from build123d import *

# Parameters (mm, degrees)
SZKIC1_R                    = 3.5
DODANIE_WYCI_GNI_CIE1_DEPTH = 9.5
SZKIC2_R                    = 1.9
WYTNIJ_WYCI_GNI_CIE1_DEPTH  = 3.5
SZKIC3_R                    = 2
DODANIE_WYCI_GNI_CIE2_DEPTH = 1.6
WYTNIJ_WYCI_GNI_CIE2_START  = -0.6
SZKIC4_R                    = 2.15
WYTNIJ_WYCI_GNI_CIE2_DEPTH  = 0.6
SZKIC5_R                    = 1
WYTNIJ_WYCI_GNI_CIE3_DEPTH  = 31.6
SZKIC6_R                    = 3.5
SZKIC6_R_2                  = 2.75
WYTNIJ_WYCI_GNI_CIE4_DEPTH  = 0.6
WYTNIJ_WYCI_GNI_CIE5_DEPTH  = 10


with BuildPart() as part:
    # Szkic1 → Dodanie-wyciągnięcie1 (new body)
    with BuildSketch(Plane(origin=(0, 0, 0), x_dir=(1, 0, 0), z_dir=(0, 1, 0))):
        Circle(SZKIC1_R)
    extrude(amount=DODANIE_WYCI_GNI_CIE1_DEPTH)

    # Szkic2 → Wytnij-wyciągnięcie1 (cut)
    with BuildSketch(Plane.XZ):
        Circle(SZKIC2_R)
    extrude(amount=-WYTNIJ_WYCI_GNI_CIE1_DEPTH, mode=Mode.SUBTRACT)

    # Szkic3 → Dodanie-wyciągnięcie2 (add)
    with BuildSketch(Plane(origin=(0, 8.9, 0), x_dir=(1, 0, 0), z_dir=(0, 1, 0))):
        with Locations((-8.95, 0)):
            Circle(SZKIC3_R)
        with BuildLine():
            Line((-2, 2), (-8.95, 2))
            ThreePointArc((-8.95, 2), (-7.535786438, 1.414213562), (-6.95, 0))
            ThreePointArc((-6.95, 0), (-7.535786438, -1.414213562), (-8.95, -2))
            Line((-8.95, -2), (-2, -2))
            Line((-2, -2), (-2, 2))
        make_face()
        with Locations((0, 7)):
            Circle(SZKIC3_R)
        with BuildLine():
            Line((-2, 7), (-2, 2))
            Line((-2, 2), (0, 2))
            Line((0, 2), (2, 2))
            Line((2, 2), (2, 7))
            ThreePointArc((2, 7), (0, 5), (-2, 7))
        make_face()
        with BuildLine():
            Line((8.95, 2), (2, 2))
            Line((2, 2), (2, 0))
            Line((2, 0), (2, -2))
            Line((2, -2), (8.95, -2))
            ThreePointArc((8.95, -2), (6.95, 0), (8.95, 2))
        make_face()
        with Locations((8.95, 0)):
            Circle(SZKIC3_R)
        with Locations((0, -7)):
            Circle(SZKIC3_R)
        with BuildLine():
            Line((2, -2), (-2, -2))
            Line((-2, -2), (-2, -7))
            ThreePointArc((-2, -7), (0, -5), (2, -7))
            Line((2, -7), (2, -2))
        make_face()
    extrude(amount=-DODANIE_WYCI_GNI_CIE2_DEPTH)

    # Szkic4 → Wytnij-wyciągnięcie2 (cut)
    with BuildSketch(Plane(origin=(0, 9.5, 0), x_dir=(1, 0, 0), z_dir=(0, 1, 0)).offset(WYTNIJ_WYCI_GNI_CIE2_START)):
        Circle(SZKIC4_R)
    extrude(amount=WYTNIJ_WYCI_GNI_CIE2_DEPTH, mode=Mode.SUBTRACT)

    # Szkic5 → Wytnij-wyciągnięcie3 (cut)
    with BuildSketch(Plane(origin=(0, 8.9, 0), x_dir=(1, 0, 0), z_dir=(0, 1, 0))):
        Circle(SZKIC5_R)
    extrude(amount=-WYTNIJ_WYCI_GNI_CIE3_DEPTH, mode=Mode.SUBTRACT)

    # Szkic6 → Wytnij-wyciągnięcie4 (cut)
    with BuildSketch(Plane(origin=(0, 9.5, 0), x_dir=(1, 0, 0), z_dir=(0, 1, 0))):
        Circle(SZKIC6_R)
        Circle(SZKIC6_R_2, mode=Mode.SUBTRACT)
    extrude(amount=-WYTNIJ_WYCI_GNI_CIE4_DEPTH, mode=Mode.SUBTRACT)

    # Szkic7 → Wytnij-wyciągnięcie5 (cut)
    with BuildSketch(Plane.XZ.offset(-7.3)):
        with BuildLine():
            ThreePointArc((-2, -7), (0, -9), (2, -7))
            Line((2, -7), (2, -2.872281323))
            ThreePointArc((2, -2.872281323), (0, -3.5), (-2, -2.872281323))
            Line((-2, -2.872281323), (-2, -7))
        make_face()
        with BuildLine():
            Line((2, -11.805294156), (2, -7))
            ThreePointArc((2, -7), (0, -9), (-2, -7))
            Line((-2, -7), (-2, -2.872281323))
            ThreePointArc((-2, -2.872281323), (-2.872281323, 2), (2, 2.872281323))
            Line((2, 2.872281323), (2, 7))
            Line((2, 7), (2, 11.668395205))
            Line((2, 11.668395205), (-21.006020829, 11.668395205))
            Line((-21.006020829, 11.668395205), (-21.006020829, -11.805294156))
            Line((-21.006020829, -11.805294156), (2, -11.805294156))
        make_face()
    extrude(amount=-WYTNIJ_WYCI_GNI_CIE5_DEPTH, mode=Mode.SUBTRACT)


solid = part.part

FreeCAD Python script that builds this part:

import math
import FreeCAD as App
import Part
import Sketcher

V = App.Vector

doc = App.newDocument("Part")
body = doc.addObject("PartDesign::Body", "Body")

# Sketch on XZ plane
sketch1 = body.newObject("Sketcher::SketchObject", "Sketch")
sketch1.AttachmentSupport = (doc.getObject("XZ_Plane"), [""])
sketch1.MapMode = "FlatFace"
sketch1.addGeometry(Part.Circle(V(0, 0, 0), V(0, 0, 1), 3.5), False)
sketch1.addConstraint([
    Sketcher.Constraint("Coincident", 0, 3, -1, 1),
    Sketcher.Constraint("Diameter", 0, 7.0),
])
pad1 = body.newObject("PartDesign::Pad", "Pad")
pad1.Profile = sketch1
pad1.Length = 9.5
pad1.Reversed = True

# Sketch on XZ plane
sketch2 = body.newObject("Sketcher::SketchObject", "Sketch001")
sketch2.AttachmentSupport = (doc.getObject("XZ_Plane"), [""])
sketch2.MapMode = "FlatFace"
sketch2.addGeometry(Part.Circle(V(0, 0, 0), V(0, 0, 1), 1.9), False)
sketch2.addConstraint([
    Sketcher.Constraint("Coincident", 0, 3, -1, 1),
    Sketcher.Constraint("Diameter", 0, 3.8),
])
pocket1 = body.newObject("PartDesign::Pocket", "Pocket")
pocket1.Profile = sketch2
pocket1.Length = 3.5

# Sketch on XZ plane
sketch3 = body.newObject("Sketcher::SketchObject", "Sketch002")
sketch3.AttachmentSupport = (doc.getObject("XZ_Plane"), [""])
sketch3.MapMode = "FlatFace"
sketch3.AttachmentOffset = App.Placement(V(0, 0, -8.9), App.Rotation())
sketch3.addGeometry([
    Part.ArcOfCircle(Part.Circle(V(-8.9, 0, 0), V(0, 0, 1), 2), math.radians(90), math.radians(270)),  # 0
    Part.LineSegment(V(-8.9, 2, 0), V(-2, 2, 0)),  # 1
    Part.LineSegment(V(-2, 2, 0), V(-2, -2, 0)),  # 2
    Part.LineSegment(V(-2, -2, 0), V(-8.9, -2, 0)),  # 3
    Part.ArcOfCircle(Part.Circle(V(0, -7, 0), V(0, 0, 1), 2), math.radians(180), math.radians(360)),  # 4
    Part.LineSegment(V(-2, -7, 0), V(-2, -2, 0)),  # 5
    Part.LineSegment(V(-2, -2, 0), V(2, -2, 0)),  # 6
    Part.LineSegment(V(2, -2, 0), V(2, -7, 0)),  # 7
    Part.LineSegment(V(8.9, -2, 0), V(2, -2, 0)),  # 8
    Part.LineSegment(V(2, -2, 0), V(2, 2, 0)),  # 9
    Part.LineSegment(V(2, 2, 0), V(8.9, 2, 0)),  # 10
    Part.ArcOfCircle(Part.Circle(V(8.9, 0, 0), V(0, 0, 1), 2), math.radians(-90), math.radians(90)),  # 11
    Part.ArcOfCircle(Part.Circle(V(0, 7, 0), V(0, 0, 1), 2), math.radians(0), math.radians(180)),  # 12
    Part.LineSegment(V(2, 7, 0), V(2, 2, 0)),  # 13
    Part.LineSegment(V(2, 2, 0), V(-2, 2, 0)),  # 14
    Part.LineSegment(V(-2, 2, 0), V(-2, 7, 0)),  # 15
], False)
sketch3.addConstraint([
    Sketcher.Constraint("Tangent", 0, 1, 1, 1),
    Sketcher.Constraint("Coincident", 1, 2, 2, 1),
    Sketcher.Constraint("Coincident", 2, 2, 3, 1),
    Sketcher.Constraint("Tangent", 3, 2, 0, 2),
    Sketcher.Constraint("Tangent", 4, 1, 5, 1),
    Sketcher.Constraint("Coincident", 5, 2, 6, 1),
    Sketcher.Constraint("Coincident", 6, 2, 7, 1),
    Sketcher.Constraint("Tangent", 7, 2, 4, 2),
    Sketcher.Constraint("Coincident", 8, 2, 9, 1),
    Sketcher.Constraint("Coincident", 9, 2, 10, 1),
    Sketcher.Constraint("Tangent", 10, 2, 11, 2),
    Sketcher.Constraint("Tangent", 11, 1, 8, 1),
    Sketcher.Constraint("Tangent", 12, 1, 13, 1),
    Sketcher.Constraint("Coincident", 13, 2, 14, 1),
    Sketcher.Constraint("Coincident", 14, 2, 15, 1),
    Sketcher.Constraint("Tangent", 15, 2, 12, 2),
    Sketcher.Constraint("Horizontal", 1),
    Sketcher.Constraint("Vertical", 2),
    Sketcher.Constraint("Horizontal", 3),
    Sketcher.Constraint("Vertical", 5),
    Sketcher.Constraint("Horizontal", 6),
    Sketcher.Constraint("Vertical", 7),
    Sketcher.Constraint("Horizontal", 8),
    Sketcher.Constraint("Vertical", 9),
    Sketcher.Constraint("Horizontal", 10),
    Sketcher.Constraint("Vertical", 13),
    Sketcher.Constraint("Horizontal", 14),
    Sketcher.Constraint("Vertical", 15),
    Sketcher.Constraint("Coincident", 5, 2, 2, 2),
    Sketcher.Constraint("Coincident", 8, 2, 6, 2),
    Sketcher.Constraint("Coincident", 13, 2, 9, 2),
    Sketcher.Constraint("Coincident", 14, 2, 1, 2),
    Sketcher.Constraint("Equal", 0, 4),
    Sketcher.Constraint("Symmetric", 0, 3, 11, 3, -1, 1),
    Sketcher.Constraint("Symmetric", 4, 3, 12, 3, -1, 1),
    Sketcher.Constraint("Radius", 0, 2.0),
    Sketcher.Constraint("DistanceY", 5, 1, 5, 2, 5.0),
    Sketcher.Constraint("DistanceX", 1, 1, 1, 2, 6.95),
])
pad2 = body.newObject("PartDesign::Pad", "Pad001")
pad2.Profile = sketch3
pad2.Length = 1.6

# Sketch on XZ plane
sketch4 = body.newObject("Sketcher::SketchObject", "Sketch003")
sketch4.AttachmentSupport = (doc.getObject("XZ_Plane"), [""])
sketch4.MapMode = "FlatFace"
sketch4.AttachmentOffset = App.Placement(V(0, 0, -8.9), App.Rotation())
sketch4.addGeometry(Part.Circle(V(0, 0, 0), V(0, 0, 1), 2.1), False)
sketch4.addConstraint([
    Sketcher.Constraint("Coincident", 0, 3, -1, 1),
    Sketcher.Constraint("Diameter", 0, 4.3),
])
pocket2 = body.newObject("PartDesign::Pocket", "Pocket001")
pocket2.Profile = sketch4
pocket2.Length = 0.6

# Sketch on XZ plane
sketch5 = body.newObject("Sketcher::SketchObject", "Sketch004")
sketch5.AttachmentSupport = (doc.getObject("XZ_Plane"), [""])
sketch5.MapMode = "FlatFace"
sketch5.AttachmentOffset = App.Placement(V(0, 0, -8.9), App.Rotation())
sketch5.addGeometry(Part.Circle(V(0, 0, 0), V(0, 0, 1), 1), False)
sketch5.addConstraint([
    Sketcher.Constraint("Coincident", 0, 3, -1, 1),
    Sketcher.Constraint("Diameter", 0, 2.0),
])
pocket3 = body.newObject("PartDesign::Pocket", "Pocket002")
pocket3.Profile = sketch5
pocket3.Length = 31.6
pocket3.Reversed = True

# Sketch on XZ plane
sketch6 = body.newObject("Sketcher::SketchObject", "Sketch005")
sketch6.AttachmentSupport = (doc.getObject("XZ_Plane"), [""])
sketch6.MapMode = "FlatFace"
sketch6.AttachmentOffset = App.Placement(V(0, 0, -9.5), App.Rotation())
sketch6.addGeometry([
    Part.Circle(V(0, 0, 0), V(0, 0, 1), 3.5),
    Part.Circle(V(0, 0, 0), V(0, 0, 1), 2.8),
], False)
sketch6.addConstraint([
    Sketcher.Constraint("Coincident", 0, 3, -1, 1),
    Sketcher.Constraint("Coincident", 1, 3, -1, 1),
    Sketcher.Constraint("Diameter", 0, 7.0),
    Sketcher.Constraint("Diameter", 1, 5.5),
])
pocket4 = body.newObject("PartDesign::Pocket", "Pocket003")
pocket4.Profile = sketch6
pocket4.Length = 0.6
pocket4.Reversed = True

# Sketch on XZ plane
sketch7 = body.newObject("Sketcher::SketchObject", "Sketch006")
sketch7.AttachmentSupport = (doc.getObject("XZ_Plane"), [""])
sketch7.MapMode = "FlatFace"
sketch7.AttachmentOffset = App.Placement(V(0, 0, -7.3), App.Rotation())
sketch7.addGeometry([
    Part.ArcOfCircle(Part.Circle(V(0, 0, 0), V(0, 0, 1), 3.5), math.radians(-125), math.radians(-55)),  # 0
    Part.ArcOfCircle(Part.Circle(V(0, 0, 0), V(0, 0, 1), 3.5), math.radians(55), math.radians(235)),  # 1
    Part.LineSegment(V(2, 2.9, 0), V(2, 11.7, 0)),  # 2
    Part.LineSegment(V(2, 11.7, 0), V(-21, 11.7, 0)),  # 3
    Part.LineSegment(V(-21, 11.7, 0), V(-21, -11.8, 0)),  # 4
    Part.LineSegment(V(-21, -11.8, 0), V(2, -11.8, 0)),  # 5
    Part.LineSegment(V(2, -11.8, 0), V(2, -2.9, 0)),  # 6
], False)
sketch7.addConstraint([
    Sketcher.Constraint("Tangent", 0, 1, 1, 2),
    Sketcher.Constraint("Coincident", 1, 1, 2, 1),
    Sketcher.Constraint("Coincident", 2, 2, 3, 1),
    Sketcher.Constraint("Coincident", 3, 2, 4, 1),
    Sketcher.Constraint("Coincident", 4, 2, 5, 1),
    Sketcher.Constraint("Coincident", 5, 2, 6, 1),
    Sketcher.Constraint("Coincident", 6, 2, 0, 2),
    Sketcher.Constraint("Vertical", 2),
    Sketcher.Constraint("Horizontal", 3),
    Sketcher.Constraint("Vertical", 4),
    Sketcher.Constraint("Horizontal", 5),
    Sketcher.Constraint("Vertical", 6),
    Sketcher.Constraint("Coincident", 0, 3, -1, 1),
    Sketcher.Constraint("Equal", 0, 1),
    Sketcher.Constraint("Horizontal", 0, 1, 6, 2),
    Sketcher.Constraint("Vertical", 2, 2, 5, 2),
    Sketcher.Constraint("Radius", 0, 3.5),
    Sketcher.Constraint("DistanceX", 0, 1, -1, 1, 2.0),
    Sketcher.Constraint("DistanceX", 3, 2, 3, 1, 23.006021),
    Sketcher.Constraint("DistanceY", 4, 2, 4, 1, 23.473689),
    Sketcher.Constraint("DistanceY", 2, 1, 2, 2, 8.796114),
])
pocket5 = body.newObject("PartDesign::Pocket", "Pocket004")
pocket5.Profile = sketch7
pocket5.Length = 10

doc.recompute()
